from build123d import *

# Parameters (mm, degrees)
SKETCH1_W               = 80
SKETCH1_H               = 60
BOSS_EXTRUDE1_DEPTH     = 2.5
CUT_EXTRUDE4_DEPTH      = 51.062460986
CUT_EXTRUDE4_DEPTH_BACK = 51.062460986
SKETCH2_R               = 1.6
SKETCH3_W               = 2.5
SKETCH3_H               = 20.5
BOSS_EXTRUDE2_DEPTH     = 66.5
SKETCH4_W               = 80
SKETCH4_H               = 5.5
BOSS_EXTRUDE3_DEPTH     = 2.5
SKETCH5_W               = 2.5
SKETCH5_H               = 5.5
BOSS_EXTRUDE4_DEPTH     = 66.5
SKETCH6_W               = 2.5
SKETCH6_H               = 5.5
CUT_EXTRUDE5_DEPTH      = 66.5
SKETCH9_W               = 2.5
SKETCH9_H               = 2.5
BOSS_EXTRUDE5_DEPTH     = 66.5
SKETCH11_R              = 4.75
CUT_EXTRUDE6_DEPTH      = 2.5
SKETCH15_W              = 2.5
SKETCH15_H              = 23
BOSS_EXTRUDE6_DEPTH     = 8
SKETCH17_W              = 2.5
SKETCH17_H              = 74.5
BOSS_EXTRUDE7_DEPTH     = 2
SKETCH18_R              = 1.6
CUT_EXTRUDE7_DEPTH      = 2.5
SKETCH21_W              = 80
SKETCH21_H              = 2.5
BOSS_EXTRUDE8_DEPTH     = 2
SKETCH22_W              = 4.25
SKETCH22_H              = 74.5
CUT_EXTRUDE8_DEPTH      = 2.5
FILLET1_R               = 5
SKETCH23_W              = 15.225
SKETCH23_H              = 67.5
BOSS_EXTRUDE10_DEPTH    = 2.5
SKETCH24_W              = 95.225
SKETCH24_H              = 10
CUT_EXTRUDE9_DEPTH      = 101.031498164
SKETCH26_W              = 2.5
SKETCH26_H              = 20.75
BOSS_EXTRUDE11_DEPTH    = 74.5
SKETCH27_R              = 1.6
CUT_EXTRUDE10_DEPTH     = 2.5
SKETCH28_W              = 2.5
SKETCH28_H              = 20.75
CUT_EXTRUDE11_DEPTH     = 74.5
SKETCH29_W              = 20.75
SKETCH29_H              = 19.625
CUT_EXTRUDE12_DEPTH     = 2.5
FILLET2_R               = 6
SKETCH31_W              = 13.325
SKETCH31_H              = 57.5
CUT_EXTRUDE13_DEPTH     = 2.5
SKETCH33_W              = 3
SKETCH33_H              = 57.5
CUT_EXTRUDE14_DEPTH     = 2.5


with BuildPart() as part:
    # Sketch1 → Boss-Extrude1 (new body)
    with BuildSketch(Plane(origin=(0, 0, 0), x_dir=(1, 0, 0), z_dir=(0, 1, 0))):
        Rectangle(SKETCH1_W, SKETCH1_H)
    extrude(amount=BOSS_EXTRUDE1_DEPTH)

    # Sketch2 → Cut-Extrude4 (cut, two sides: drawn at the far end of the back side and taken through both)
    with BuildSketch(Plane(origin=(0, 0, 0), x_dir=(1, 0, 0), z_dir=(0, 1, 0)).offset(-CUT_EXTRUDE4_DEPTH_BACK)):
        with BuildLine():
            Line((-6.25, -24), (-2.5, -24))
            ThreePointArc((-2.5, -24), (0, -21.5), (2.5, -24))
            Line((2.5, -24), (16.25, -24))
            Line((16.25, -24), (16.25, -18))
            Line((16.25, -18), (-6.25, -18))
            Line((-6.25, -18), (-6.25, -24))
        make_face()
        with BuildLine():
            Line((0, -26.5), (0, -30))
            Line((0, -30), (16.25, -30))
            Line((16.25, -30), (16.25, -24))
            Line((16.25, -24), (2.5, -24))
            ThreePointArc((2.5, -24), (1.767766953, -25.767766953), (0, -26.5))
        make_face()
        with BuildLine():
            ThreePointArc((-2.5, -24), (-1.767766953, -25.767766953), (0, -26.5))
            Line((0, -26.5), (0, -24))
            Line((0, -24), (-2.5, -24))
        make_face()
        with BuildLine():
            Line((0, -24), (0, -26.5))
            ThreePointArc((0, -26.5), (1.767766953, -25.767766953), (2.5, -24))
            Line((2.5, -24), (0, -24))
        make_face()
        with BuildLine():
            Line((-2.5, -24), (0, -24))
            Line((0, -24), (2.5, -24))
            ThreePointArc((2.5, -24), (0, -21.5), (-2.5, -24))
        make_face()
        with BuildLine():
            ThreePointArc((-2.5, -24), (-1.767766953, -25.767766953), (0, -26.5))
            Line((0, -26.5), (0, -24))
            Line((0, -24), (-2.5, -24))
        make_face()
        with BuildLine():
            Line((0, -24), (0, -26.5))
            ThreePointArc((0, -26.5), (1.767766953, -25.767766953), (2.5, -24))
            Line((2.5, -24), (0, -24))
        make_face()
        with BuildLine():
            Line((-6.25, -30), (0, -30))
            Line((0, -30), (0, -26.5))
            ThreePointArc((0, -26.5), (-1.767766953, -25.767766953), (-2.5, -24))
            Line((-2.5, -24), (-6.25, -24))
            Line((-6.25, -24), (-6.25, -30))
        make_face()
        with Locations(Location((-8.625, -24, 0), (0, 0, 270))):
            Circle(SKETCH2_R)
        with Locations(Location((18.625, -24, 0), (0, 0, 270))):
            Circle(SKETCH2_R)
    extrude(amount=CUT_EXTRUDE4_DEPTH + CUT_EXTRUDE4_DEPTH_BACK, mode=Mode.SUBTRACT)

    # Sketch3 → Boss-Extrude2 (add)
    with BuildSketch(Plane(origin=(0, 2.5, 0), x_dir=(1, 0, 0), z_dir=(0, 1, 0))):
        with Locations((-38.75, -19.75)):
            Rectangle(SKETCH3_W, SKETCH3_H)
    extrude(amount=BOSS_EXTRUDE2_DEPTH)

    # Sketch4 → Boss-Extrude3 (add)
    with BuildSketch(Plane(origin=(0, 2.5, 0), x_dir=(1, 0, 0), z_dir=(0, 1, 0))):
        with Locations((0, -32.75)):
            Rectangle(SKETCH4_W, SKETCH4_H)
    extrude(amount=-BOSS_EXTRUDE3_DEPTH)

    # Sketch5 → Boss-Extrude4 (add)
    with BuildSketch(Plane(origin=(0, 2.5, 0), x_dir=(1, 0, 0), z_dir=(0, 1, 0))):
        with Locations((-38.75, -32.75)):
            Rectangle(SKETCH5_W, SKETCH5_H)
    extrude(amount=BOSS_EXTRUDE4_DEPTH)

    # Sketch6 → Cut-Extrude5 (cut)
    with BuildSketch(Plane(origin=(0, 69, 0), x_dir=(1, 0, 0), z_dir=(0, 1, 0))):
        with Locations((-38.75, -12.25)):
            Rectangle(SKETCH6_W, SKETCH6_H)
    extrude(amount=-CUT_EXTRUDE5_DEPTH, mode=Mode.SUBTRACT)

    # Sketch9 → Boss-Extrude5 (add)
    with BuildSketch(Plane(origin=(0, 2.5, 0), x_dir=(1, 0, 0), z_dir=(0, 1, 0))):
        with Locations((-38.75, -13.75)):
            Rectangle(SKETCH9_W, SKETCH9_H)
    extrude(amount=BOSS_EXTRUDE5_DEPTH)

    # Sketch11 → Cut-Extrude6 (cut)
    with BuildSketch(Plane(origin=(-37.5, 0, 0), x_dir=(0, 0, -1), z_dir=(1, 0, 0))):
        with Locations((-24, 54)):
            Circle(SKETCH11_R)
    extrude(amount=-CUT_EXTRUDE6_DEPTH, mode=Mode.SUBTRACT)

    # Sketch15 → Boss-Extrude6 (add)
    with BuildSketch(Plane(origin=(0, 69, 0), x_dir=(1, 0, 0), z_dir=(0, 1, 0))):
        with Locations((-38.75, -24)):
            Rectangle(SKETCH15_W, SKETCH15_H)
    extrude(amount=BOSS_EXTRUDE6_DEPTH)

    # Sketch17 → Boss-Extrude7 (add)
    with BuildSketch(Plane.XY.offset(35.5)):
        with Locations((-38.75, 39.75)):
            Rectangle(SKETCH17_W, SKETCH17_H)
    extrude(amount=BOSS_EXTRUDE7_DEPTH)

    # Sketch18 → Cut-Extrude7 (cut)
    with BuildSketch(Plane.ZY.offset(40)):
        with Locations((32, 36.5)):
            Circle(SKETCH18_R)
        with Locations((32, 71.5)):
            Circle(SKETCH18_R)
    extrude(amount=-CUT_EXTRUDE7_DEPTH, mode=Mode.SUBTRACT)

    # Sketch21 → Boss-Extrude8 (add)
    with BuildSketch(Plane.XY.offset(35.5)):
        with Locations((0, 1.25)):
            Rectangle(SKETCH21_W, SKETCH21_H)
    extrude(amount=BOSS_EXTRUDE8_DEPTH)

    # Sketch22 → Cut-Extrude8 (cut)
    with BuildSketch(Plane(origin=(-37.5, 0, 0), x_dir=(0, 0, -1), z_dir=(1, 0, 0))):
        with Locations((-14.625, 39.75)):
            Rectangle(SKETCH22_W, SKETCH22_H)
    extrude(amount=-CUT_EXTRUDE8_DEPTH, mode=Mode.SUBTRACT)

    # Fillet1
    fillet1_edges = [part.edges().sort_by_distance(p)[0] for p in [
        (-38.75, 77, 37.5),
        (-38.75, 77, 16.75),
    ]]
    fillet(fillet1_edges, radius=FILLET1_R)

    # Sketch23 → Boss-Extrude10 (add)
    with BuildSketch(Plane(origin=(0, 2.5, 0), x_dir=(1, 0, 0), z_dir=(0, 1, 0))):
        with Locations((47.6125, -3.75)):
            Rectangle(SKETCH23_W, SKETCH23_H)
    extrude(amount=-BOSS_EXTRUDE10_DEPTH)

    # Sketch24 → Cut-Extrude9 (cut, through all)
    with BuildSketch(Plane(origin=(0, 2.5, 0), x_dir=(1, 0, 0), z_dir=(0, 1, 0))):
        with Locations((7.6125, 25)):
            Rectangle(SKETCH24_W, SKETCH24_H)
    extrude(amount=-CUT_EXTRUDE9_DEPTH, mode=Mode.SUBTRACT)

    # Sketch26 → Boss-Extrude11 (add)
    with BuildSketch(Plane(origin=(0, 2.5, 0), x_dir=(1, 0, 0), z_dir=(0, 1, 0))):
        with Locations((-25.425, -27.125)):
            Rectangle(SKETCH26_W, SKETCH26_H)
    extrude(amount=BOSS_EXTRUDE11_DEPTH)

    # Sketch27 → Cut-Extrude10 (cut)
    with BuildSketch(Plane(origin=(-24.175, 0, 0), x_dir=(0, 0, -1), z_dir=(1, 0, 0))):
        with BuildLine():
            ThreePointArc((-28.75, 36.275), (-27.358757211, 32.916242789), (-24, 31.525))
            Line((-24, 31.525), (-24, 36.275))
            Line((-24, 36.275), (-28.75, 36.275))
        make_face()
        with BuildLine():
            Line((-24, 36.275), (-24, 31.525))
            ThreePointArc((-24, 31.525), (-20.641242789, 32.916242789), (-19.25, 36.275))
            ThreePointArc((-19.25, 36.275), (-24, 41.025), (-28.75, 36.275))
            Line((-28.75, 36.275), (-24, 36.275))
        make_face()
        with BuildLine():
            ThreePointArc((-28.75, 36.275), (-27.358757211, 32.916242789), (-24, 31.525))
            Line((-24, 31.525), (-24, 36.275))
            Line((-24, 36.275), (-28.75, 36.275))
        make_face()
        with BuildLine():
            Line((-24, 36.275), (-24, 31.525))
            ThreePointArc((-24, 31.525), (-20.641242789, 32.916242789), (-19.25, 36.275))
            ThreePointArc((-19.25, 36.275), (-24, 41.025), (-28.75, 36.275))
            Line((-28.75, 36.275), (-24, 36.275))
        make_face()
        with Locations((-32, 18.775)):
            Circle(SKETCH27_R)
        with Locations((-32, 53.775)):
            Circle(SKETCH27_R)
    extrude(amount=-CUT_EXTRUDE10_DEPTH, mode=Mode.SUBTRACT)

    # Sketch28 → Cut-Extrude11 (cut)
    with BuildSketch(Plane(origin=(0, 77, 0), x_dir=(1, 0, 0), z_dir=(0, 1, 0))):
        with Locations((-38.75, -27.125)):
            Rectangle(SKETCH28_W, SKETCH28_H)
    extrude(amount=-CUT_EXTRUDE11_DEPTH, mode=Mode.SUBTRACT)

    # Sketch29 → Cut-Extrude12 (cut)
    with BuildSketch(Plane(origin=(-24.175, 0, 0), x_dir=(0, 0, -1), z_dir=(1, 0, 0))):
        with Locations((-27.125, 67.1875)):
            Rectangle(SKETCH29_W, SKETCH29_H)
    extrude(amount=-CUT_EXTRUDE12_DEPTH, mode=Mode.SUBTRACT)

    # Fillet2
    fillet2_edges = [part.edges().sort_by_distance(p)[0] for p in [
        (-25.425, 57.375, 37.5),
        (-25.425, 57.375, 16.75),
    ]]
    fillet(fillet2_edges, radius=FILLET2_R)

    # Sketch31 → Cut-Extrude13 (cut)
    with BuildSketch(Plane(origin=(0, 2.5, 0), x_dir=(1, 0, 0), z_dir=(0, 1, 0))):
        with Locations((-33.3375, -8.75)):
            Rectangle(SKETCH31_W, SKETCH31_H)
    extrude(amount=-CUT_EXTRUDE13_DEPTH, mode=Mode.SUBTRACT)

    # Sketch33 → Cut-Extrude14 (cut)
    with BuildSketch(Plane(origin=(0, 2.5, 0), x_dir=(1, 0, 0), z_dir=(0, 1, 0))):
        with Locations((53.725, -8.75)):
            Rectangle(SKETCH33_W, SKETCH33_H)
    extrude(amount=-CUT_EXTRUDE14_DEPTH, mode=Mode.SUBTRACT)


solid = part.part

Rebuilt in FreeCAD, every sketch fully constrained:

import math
import FreeCAD as App
import Part
import Sketcher

V = App.Vector
Q = App.Units.Quantity


def edges_at(feature, points):
    """Names of the edges that pass closest to the given points."""
    edges = feature.Shape.Edges
    near = lambda p: min(range(len(edges)), key=lambda i: edges[i].distToShape(Part.Vertex(*p))[0])
    return sorted({f"Edge{near(p) + 1}" for p in points})


def add_polygon(sketch, points):
    """Adds a closed chain of lines whose ends are joined by coincident constraints."""
    first, n = sketch.GeometryCount, len(points)
    for a, b in zip(points, points[1:] + points[:1]):
        sketch.addGeometry(Part.LineSegment(App.Vector(*a, 0), App.Vector(*b, 0)), False)
    for i in range(n):
        sketch.addConstraint(Sketcher.Constraint("Coincident", first + i, 2, first + (i + 1) % n, 1))

doc = App.newDocument("Part")
params = doc.addObject("Spreadsheet::Sheet", "Params")
for row, (alias, value) in enumerate([
    ("sketch1_width", "80 mm"),
    ("sketch1_height", "60 mm"),
    ("pad1_length", "2.5 mm"),
    ("sketch2_diameter", "3.2 mm"),
    ("sketch2_height", "12 mm"),
    ("sketch2_width", "22.5 mm"),
    ("sketch3_width", "2.5 mm"),
    ("sketch3_height", "20.5 mm"),
    ("pad2_length", "66.5 mm"),
    ("sketch4_width", "80 mm"),
    ("sketch4_height", "5.5 mm"),
    ("pad3_length", "2.5 mm"),
    ("sketch5_width", "2.5 mm"),
    ("sketch5_height", "5.5 mm"),
    ("pad4_length", "66.5 mm"),
    ("sketch6_width", "2.5 mm"),
    ("sketch6_height", "5.5 mm"),
    ("pocket2_length", "66.5 mm"),
    ("sketch7_width", "2.5 mm"),
    ("pad5_length", "66.5 mm"),
    ("sketch8_diameter", "9.5 mm"),
    ("pocket3_length", "2.5 mm"),
    ("sketch9_height", "23 mm"),
    ("sketch9_width", "2.5 mm"),
    ("pad6_length", "8 mm"),
    ("sketch10_width", "2.5 mm"),
    ("sketch10_height", "74.5 mm"),
    ("pad7_length", "2 mm"),
    ("sketch11_diameter", "3.2 mm"),
    ("pocket4_length", "2.5 mm"),
    ("sketch12_width", "80 mm"),
    ("sketch12_height", "2.5 mm"),
    ("pad8_length", "2 mm"),
    ("sketch13_width", "74.5 mm"),
    ("sketch13_height", "4.25 mm"),
    ("pocket5_length", "2.5 mm"),
    ("fillet_radius", "5 mm"),
    ("sketch14_height", "67.5 mm"),
    ("pad9_length", "2.5 mm"),
    ("sketch15_height", "10 mm"),
    ("sketch16_width", "2.5 mm"),
    ("sketch16_height", "20.75 mm"),
    ("pad10_length", "74.5 mm"),
    ("sketch17_diameter", "3.2 mm"),
    ("sketch17_radius", "4.75 mm"),
    ("pocket7_length", "2.5 mm"),
    ("sketch18_width", "2.5 mm"),
    ("sketch18_height", "20.75 mm"),
    ("pocket8_length", "74.5 mm"),
    ("sketch19_height", "20.75 mm"),
    ("pocket9_length", "2.5 mm"),
    ("fillet2_radius", "6 mm"),
    ("sketch20_height", "57.5 mm"),
    ("pocket10_length", "2.5 mm"),
    ("sketch21_width", "3 mm"),
    ("sketch21_height", "57.5 mm"),
    ("pocket11_length", "2.5 mm"),
], start=1):
    params.set(f"A{row}", alias)
    params.set(f"B{row}", "=" + value)
    params.setAlias(f"B{row}", alias)

body = doc.addObject("PartDesign::Body", "Body")

sketch1 = doc.addObject("Sketcher::SketchObject", "Sketch")
body.addObject(sketch1)
sketch1.AttachmentSupport = (doc.XZ_Plane, [""])
sketch1.MapMode = "FlatFace"
add_polygon(sketch1, [(-40, -30), (-40, 30), (40, 30), (40, -30)])
sketch1.addConstraint([
    Sketcher.Constraint("Vertical", 0),
    Sketcher.Constraint("Horizontal", 1),
    Sketcher.Constraint("Vertical", 2),
    Sketcher.Constraint("Horizontal", 3),
    Sketcher.Constraint("Symmetric", 0, 2, 2, 2, -1, 1),
    Sketcher.Constraint("DistanceX", 1, 1, 1, 2, Q("80 mm")),
    Sketcher.Constraint("DistanceY", 0, 1, 0, 2, Q("60 mm")),
])
sketch1.setExpression("Constraints[9]", "Params.sketch1_width")
sketch1.setExpression("Constraints[10]", "Params.sketch1_height")
pad1 = doc.addObject("PartDesign::Pad", "Pad")
body.addObject(pad1)
pad1.Profile = sketch1
pad1.setExpression("Length", "Params.pad1_length")
pad1.Reversed = True

sketch2 = doc.addObject("Sketcher::SketchObject", "Sketch001")
body.addObject(sketch2)
sketch2.AttachmentSupport = (doc.XZ_Plane, [""])
sketch2.MapMode = "FlatFace"
add_polygon(sketch2, [(16.25, 18), (-6.25, 18), (-6.25, 30), (16.25, 30)])
sketch2.addGeometry(Part.Circle(V(-8.625, 24, 0), V(0, 0, 1), 1.6), False)
sketch2.addGeometry(Part.Circle(V(18.625, 24, 0), V(0, 0, 1), 1.6), False)
sketch2.addConstraint([
    Sketcher.Constraint("Horizontal", 0),
    Sketcher.Constraint("Vertical", 1),
    Sketcher.Constraint("Horizontal", 2),
    Sketcher.Constraint("Vertical", 3),
    Sketcher.Constraint("Equal", 4, 5),
    Sketcher.Constraint("Horizontal", 4, 3, 5, 3),
    Sketcher.Constraint("Diameter", 4, Q("3.2 mm")),
    Sketcher.Constraint("DistanceY", 1, 1, 1, 2, Q("12 mm")),
    Sketcher.Constraint("DistanceX", 0, 2, 0, 1, Q("22.5 mm")),
    Sketcher.Constraint("DistanceY", -1, 1, 4, 3, Q("24 mm")),
    Sketcher.Constraint("DistanceY", -1, 1, 0, 2, Q("18 mm")),
    Sketcher.Constraint("DistanceX", 0, 2, -1, 1, Q("6.25 mm")),
    Sketcher.Constraint("DistanceX", 4, 3, 5, 3, Q("27.25 mm")),
    Sketcher.Constraint("DistanceX", 4, 3, -1, 1, Q("8.625 mm")),
])
sketch2.setExpression("Constraints[10]", "Params.sketch2_diameter")
sketch2.setExpression("Constraints[11]", "Params.sketch2_height")
sketch2.setExpression("Constraints[12]", "Params.sketch2_width")
pocket1 = doc.addObject("PartDesign::Pocket", "Pocket")
body.addObject(pocket1)
pocket1.Profile = sketch2
pocket1.Type = "ThroughAll"
pocket1.Midplane = True

sketch3 = doc.addObject("Sketcher::SketchObject", "Sketch002")
body.addObject(sketch3)
sketch3.AttachmentSupport = (doc.XZ_Plane, [""])
sketch3.MapMode = "FlatFace"
sketch3.AttachmentOffset = App.Placement(V(0, 0, -2.5), App.Rotation())
add_polygon(sketch3, [(-40, 9.5), (-40, 30), (-37.5, 30), (-37.5, 9.5)])
sketch3.addConstraint([
    Sketcher.Constraint("Vertical", 0),
    Sketcher.Constraint("Horizontal", 1),
    Sketcher.Constraint("Vertical", 2),
    Sketcher.Constraint("Horizontal", 3),
    Sketcher.Constraint("DistanceX", 1, 1, 1, 2, Q("2.5 mm")),
    Sketcher.Constraint("DistanceY", 0, 1, 0, 2, Q("20.5 mm")),
    Sketcher.Constraint("DistanceX", 0, 2, -1, 1, Q("40 mm")),
    Sketcher.Constraint("DistanceY", -1, 1, 0, 2, Q("30 mm")),
])
sketch3.setExpression("Constraints[8]", "Params.sketch3_width")
sketch3.setExpression("Constraints[9]", "Params.sketch3_height")
pad2 = doc.addObject("PartDesign::Pad", "Pad001")
body.addObject(pad2)
pad2.Profile = sketch3
pad2.setExpression("Length", "Params.pad2_length")
pad2.Reversed = True

sketch4 = doc.addObject("Sketcher::SketchObject", "Sketch003")
body.addObject(sketch4)
sketch4.AttachmentSupport = (doc.XZ_Plane, [""])
sketch4.MapMode = "FlatFace"
sketch4.AttachmentOffset = App.Placement(V(0, 0, -2.5), App.Rotation())
add_polygon(sketch4, [(-40, 30), (-40, 35.5), (40, 35.5), (40, 30)])
sketch4.addConstraint([
    Sketcher.Constraint("Vertical", 0),
    Sketcher.Constraint("Horizontal", 1),
    Sketcher.Constraint("Vertical", 2),
    Sketcher.Constraint("Horizontal", 3),
    Sketcher.Constraint("DistanceX", 1, 1, 1, 2, Q("80 mm")),
    Sketcher.Constraint("DistanceY", 0, 1, 0, 2, Q("5.5 mm")),
    Sketcher.Constraint("DistanceX", 0, 2, -1, 1, Q("40 mm")),
    Sketcher.Constraint("DistanceY", -1, 1, 2, 2, Q("30 mm")),
])
sketch4.setExpression("Constraints[8]", "Params.sketch4_width")
sketch4.setExpression("Constraints[9]", "Params.sketch4_height")
pad3 = doc.addObject("PartDesign::Pad", "Pad002")
body.addObject(pad3)
pad3.Profile = sketch4
pad3.setExpression("Length", "Params.pad3_length")

sketch5 = doc.addObject("Sketcher::SketchObject", "Sketch004")
body.addObject(sketch5)
sketch5.AttachmentSupport = (doc.XZ_Plane, [""])
sketch5.MapMode = "FlatFace"
sketch5.AttachmentOffset = App.Placement(V(0, 0, -2.5), App.Rotation())
add_polygon(sketch5, [(-40, 30), (-40, 35.5), (-37.5, 35.5), (-37.5, 30)])
sketch5.addConstraint([
    Sketcher.Constraint("Vertical", 0),
    Sketcher.Constraint("Horizontal", 1),
    Sketcher.Constraint("Vertical", 2),
    Sketcher.Constraint("Horizontal", 3),
    Sketcher.Constraint("DistanceX", 1, 1, 1, 2, Q("2.5 mm")),
    Sketcher.Constraint("DistanceY", 0, 1, 0, 2, Q("5.5 mm")),
    Sketcher.Constraint("DistanceX", 0, 2, -1, 1, Q("40 mm")),
    Sketcher.Constraint("DistanceY", -1, 1, 2, 2, Q("30 mm")),
])
sketch5.setExpression("Constraints[8]", "Params.sketch5_width")
sketch5.setExpression("Constraints[9]", "Params.sketch5_height")
pad4 = doc.addObject("PartDesign::Pad", "Pad003")
body.addObject(pad4)
pad4.Profile = sketch5
pad4.setExpression("Length", "Params.pad4_length")
pad4.Reversed = True

sketch6 = doc.addObject("Sketcher::SketchObject", "Sketch005")
body.addObject(sketch6)
sketch6.AttachmentSupport = (doc.XZ_Plane, [""])
sketch6.MapMode = "FlatFace"
sketch6.AttachmentOffset = App.Placement(V(0, 0, -69), App.Rotation())
add_polygon(sketch6, [(-40, 9.5), (-40, 15), (-37.5, 15), (-37.5, 9.5)])
sketch6.addConstraint([
    Sketcher.Constraint("Vertical", 0),
    Sketcher.Constraint("Horizontal", 1),
    Sketcher.Constraint("Vertical", 2),
    Sketcher.Constraint("Horizontal", 3),
    Sketcher.Constraint("DistanceX", 1, 1, 1, 2, Q("2.5 mm")),
    Sketcher.Constraint("DistanceY", 0, 1, 0, 2, Q("5.5 mm")),
    Sketcher.Constraint("DistanceX", 0, 2, -1, 1, Q("40 mm")),
    Sketcher.Constraint("DistanceY", -1, 1, 0, 2, Q("15 mm")),
])
sketch6.setExpression("Constraints[8]", "Params.sketch6_width")
sketch6.setExpression("Constraints[9]", "Params.sketch6_height")
pocket2 = doc.addObject("PartDesign::Pocket", "Pocket001")
body.addObject(pocket2)
pocket2.Profile = sketch6
pocket2.setExpression("Length", "Params.pocket2_length")
pocket2.Reversed = True

sketch7 = doc.addObject("Sketcher::SketchObject", "Sketch006")
body.addObject(sketch7)
sketch7.AttachmentSupport = (doc.XZ_Plane, [""])
sketch7.MapMode = "FlatFace"
sketch7.AttachmentOffset = App.Placement(V(0, 0, -2.5), App.Rotation())
add_polygon(sketch7, [(-40, 12.5), (-40, 15), (-37.5, 15), (-37.5, 12.5)])
sketch7.addConstraint([
    Sketcher.Constraint("Vertical", 0),
    Sketcher.Constraint("Horizontal", 1),
    Sketcher.Constraint("Vertical", 2),
    Sketcher.Constraint("Horizontal", 3),
    Sketcher.Constraint("Equal", 3, 0),
    Sketcher.Constraint("DistanceX", 1, 1, 1, 2, Q("2.5 mm")),
    Sketcher.Constraint("DistanceX", 0, 2, -1, 1, Q("40 mm")),
    Sketcher.Constraint("DistanceY", -1, 1, 0, 2, Q("15 mm")),
])
sketch7.setExpression("Constraints[9]", "Params.sketch7_width")
pad5 = doc.addObject("PartDesign::Pad", "Pad004")
body.addObject(pad5)
pad5.Profile = sketch7
pad5.setExpression("Length", "Params.pad5_length")
pad5.Reversed = True

sketch8 = doc.addObject("Sketcher::SketchObject", "Sketch007")
body.addObject(sketch8)
sketch8.AttachmentSupport = (doc.YZ_Plane, [""])
sketch8.MapMode = "FlatFace"
sketch8.AttachmentOffset = App.Placement(V(0, 0, -37.5), App.Rotation())
sketch8.addGeometry(Part.Circle(V(54, 24, 0), V(0, 0, 1), 4.75), False)
sketch8.addConstraint([
    Sketcher.Constraint("Diameter", 0, Q("9.5 mm")),
    Sketcher.Constraint("DistanceX", -1, 1, 0, 3, Q("54 mm")),
    Sketcher.Constraint("DistanceY", -1, 1, 0, 3, Q("24 mm")),
])
sketch8.setExpression("Constraints[0]", "Params.sketch8_diameter")
pocket3 = doc.addObject("PartDesign::Pocket", "Pocket002")
body.addObject(pocket3)
pocket3.Profile = sketch8
pocket3.setExpression("Length", "Params.pocket3_length")

sketch9 = doc.addObject("Sketcher::SketchObject", "Sketch008")
body.addObject(sketch9)
sketch9.AttachmentSupport = (doc.XZ_Plane, [""])
sketch9.MapMode = "FlatFace"
sketch9.AttachmentOffset = App.Placement(V(0, 0, -69), App.Rotation())
add_polygon(sketch9, [(-40, 12.5), (-40, 35.5), (-37.5, 35.5), (-37.5, 12.5)])
sketch9.addConstraint([
    Sketcher.Constraint("Vertical", 0),
    Sketcher.Constraint("Horizontal", 1),
    Sketcher.Constraint("Vertical", 2),
    Sketcher.Constraint("Horizontal", 3),
    Sketcher.Constraint("DistanceY", 0, 1, 0, 2, Q("23 mm")),
    Sketcher.Constraint("DistanceX", 1, 1, 1, 2, Q("2.5 mm")),
    Sketcher.Constraint("DistanceX", 0, 2, -1, 1, Q("40 mm")),
    Sketcher.Constraint("DistanceY", -1, 1, 0, 2, Q("35.5 mm")),
])
sketch9.setExpression("Constraints[8]", "Params.sketch9_height")
sketch9.setExpression("Constraints[9]", "Params.sketch9_width")
pad6 = doc.addObject("PartDesign::Pad", "Pad005")
body.addObject(pad6)
pad6.Profile = sketch9
pad6.setExpression("Length", "Params.pad6_length")
pad6.Reversed = True

sketch10 = doc.addObject("Sketcher::SketchObject", "Sketch009")
body.addObject(sketch10)
sketch10.AttachmentSupport = (doc.XY_Plane, [""])
sketch10.MapMode = "FlatFace"
sketch10.AttachmentOffset = App.Placement(V(0, 0, 35.5), App.Rotation())
add_polygon(sketch10, [(-40, 77), (-40, 2.5), (-37.5, 2.5), (-37.5, 77)])
sketch10.addConstraint([
    Sketcher.Constraint("Vertical", 0),
    Sketcher.Constraint("Horizontal", 1),
    Sketcher.Constraint("Vertical", 2),
    Sketcher.Constraint("Horizontal", 3),
    Sketcher.Constraint("DistanceX", 1, 1, 1, 2, Q("2.5 mm")),
    Sketcher.Constraint("DistanceY", 0, 2, 0, 1, Q("74.5 mm")),
    Sketcher.Constraint("DistanceX", 0, 2, -1, 1, Q("40 mm")),
    Sketcher.Constraint("DistanceY", -1, 1, 2, 2, Q("77 mm")),
])
sketch10.setExpression("Constraints[8]", "Params.sketch10_width")
sketch10.setExpression("Constraints[9]", "Params.sketch10_height")
pad7 = doc.addObject("PartDesign::Pad", "Pad006")
body.addObject(pad7)
pad7.Profile = sketch10
pad7.setExpression("Length", "Params.pad7_length")

sketch11 = doc.addObject("Sketcher::SketchObject", "Sketch010")
body.addObject(sketch11)
sketch11.AttachmentSupport = (doc.YZ_Plane, [""])
sketch11.MapMode = "FlatFace"
sketch11.AttachmentOffset = App.Placement(V(0, 0, -40), App.Rotation())
sketch11.addGeometry([
    Part.Circle(V(36.5, 32, 0), V(0, 0, 1), 1.6),
    Part.Circle(V(71.5, 32, 0), V(0, 0, 1), 1.6),
], False)
sketch11.addConstraint([
    Sketcher.Constraint("Equal", 0, 1),
    Sketcher.Constraint("Horizontal", 0, 3, 1, 3),
    Sketcher.Constraint("Diameter", 0, Q("3.2 mm")),
    Sketcher.Constraint("DistanceY", -1, 1, 0, 3, Q("32 mm")),
    Sketcher.Constraint("DistanceX", 0, 3, 1, 3, Q("35 mm")),
    Sketcher.Constraint("DistanceX", -1, 1, 0, 3, Q("36.5 mm")),
])
sketch11.setExpression("Constraints[2]", "Params.sketch11_diameter")
pocket4 = doc.addObject("PartDesign::Pocket", "Pocket003")
body.addObject(pocket4)
pocket4.Profile = sketch11
pocket4.setExpression("Length", "Params.pocket4_length")
pocket4.Reversed = True

sketch12 = doc.addObject("Sketcher::SketchObject", "Sketch011")
body.addObject(sketch12)
sketch12.AttachmentSupport = (doc.XY_Plane, [""])
sketch12.MapMode = "FlatFace"
sketch12.AttachmentOffset = App.Placement(V(0, 0, 35.5), App.Rotation())
add_polygon(sketch12, [(-40, 2.5), (-40, 0), (40, 0), (40, 2.5)])
sketch12.addConstraint([
    Sketcher.Constraint("Vertical", 0),
    Sketcher.Constraint("Horizontal", 1),
    Sketcher.Constraint("Vertical", 2),
    Sketcher.Constraint("Horizontal", 3),
    Sketcher.Constraint("Symmetric", 0, 2, 1, 2, -1, 1),
    Sketcher.Constraint("DistanceX", 1, 1, 1, 2, Q("80 mm")),
    Sketcher.Constraint("DistanceY", 0, 2, 0, 1, Q("2.5 mm")),
])
sketch12.setExpression("Constraints[9]", "Params.sketch12_width")
sketch12.setExpression("Constraints[10]", "Params.sketch12_height")
pad8 = doc.addObject("PartDesign::Pad", "Pad007")
body.addObject(pad8)
pad8.Profile = sketch12
pad8.setExpression("Length", "Params.pad8_length")

sketch13 = doc.addObject("Sketcher::SketchObject", "Sketch012")
body.addObject(sketch13)
sketch13.AttachmentSupport = (doc.YZ_Plane, [""])
sketch13.MapMode = "FlatFace"
sketch13.AttachmentOffset = App.Placement(V(0, 0, -37.5), App.Rotation())
add_polygon(sketch13, [(77, 16.75), (2.5, 16.75), (2.5, 12.5), (77, 12.5)])
sketch13.addConstraint([
    Sketcher.Constraint("Horizontal", 0),
    Sketcher.Constraint("Vertical", 1),
    Sketcher.Constraint("Horizontal", 2),
    Sketcher.Constraint("Vertical", 3),
    Sketcher.Constraint("DistanceX", 0, 2, 0, 1, Q("74.5 mm")),
    Sketcher.Constraint("DistanceX", -1, 1, 2, 2, Q("77 mm")),
    Sketcher.Constraint("DistanceY", 1, 2, 1, 1, Q("4.25 mm")),
    Sketcher.Constraint("DistanceY", -1, 1, 1, 2, Q("12.5 mm")),
])
sketch13.setExpression("Constraints[8]", "Params.sketch13_width")
sketch13.setExpression("Constraints[10]", "Params.sketch13_height")
pocket5 = doc.addObject("PartDesign::Pocket", "Pocket004")
body.addObject(pocket5)
pocket5.Profile = sketch13
pocket5.setExpression("Length", "Params.pocket5_length")
doc.recompute()

fillet = doc.addObject("PartDesign::Fillet", "Fillet")
body.addObject(fillet)
fillet.Base = (pocket5, edges_at(pocket5, [(-38.75, 77, 37.5), (-38.75, 77, 16.75)]))
fillet.setExpression("Radius", "Params.fillet_radius")

sketch14 = doc.addObject("Sketcher::SketchObject", "Sketch013")
body.addObject(sketch14)
sketch14.AttachmentSupport = (doc.XZ_Plane, [""])
sketch14.MapMode = "FlatFace"
sketch14.AttachmentOffset = App.Placement(V(0, 0, -2.5), App.Rotation())
add_polygon(sketch14, [(40, -30), (40, 37.5), (55.225, 37.5), (55.225, -30)])
sketch14.addConstraint([
    Sketcher.Constraint("Vertical", 0),
    Sketcher.Constraint("Horizontal", 1),
    Sketcher.Constraint("Vertical", 2),
    Sketcher.Constraint("Horizontal", 3),
    Sketcher.Constraint("DistanceY", 0, 1, 0, 2, Q("67.5 mm")),
    Sketcher.Constraint("DistanceX", -1, 1, 0, 2, Q("40 mm")),
    Sketcher.Constraint("DistanceY", 2, 2, -1, 1, Q("30 mm")),
    Sketcher.Constraint("DistanceX", 1, 1, 1, 2, Q("15.225 mm")),
])
sketch14.setExpression("Constraints[8]", "Params.sketch14_height")
pad9 = doc.addObject("PartDesign::Pad", "Pad008")
body.addObject(pad9)
pad9.Profile = sketch14
pad9.setExpression("Length", "Params.pad9_length")

sketch15 = doc.addObject("Sketcher::SketchObject", "Sketch014")
body.addObject(sketch15)
sketch15.AttachmentSupport = (doc.XZ_Plane, [""])
sketch15.MapMode = "FlatFace"
sketch15.AttachmentOffset = App.Placement(V(0, 0, -2.5), App.Rotation())
add_polygon(sketch15, [(-40, -30), (-40, -20), (55.225, -20), (55.225, -30)])
sketch15.addConstraint([
    Sketcher.Constraint("Vertical", 0),
    Sketcher.Constraint("Horizontal", 1),
    Sketcher.Constraint("Vertical", 2),
    Sketcher.Constraint("Horizontal", 3),
    Sketcher.Constraint("DistanceY", 0, 1, 0, 2, Q("10 mm")),
    Sketcher.Constraint("DistanceX", 0, 2, -1, 1, Q("40 mm")),
    Sketcher.Constraint("DistanceY", 0, 2, -1, 1, Q("20 mm")),
    Sketcher.Constraint("DistanceX", 1, 1, 1, 2, Q("95.225 mm")),
])
sketch15.setExpression("Constraints[8]", "Params.sketch15_height")
pocket6 = doc.addObject("PartDesign::Pocket", "Pocket005")
body.addObject(pocket6)
pocket6.Profile = sketch15
pocket6.Type = "ThroughAll"
pocket6.Reversed = True

sketch16 = doc.addObject("Sketcher::SketchObject", "Sketch015")
body.addObject(sketch16)
sketch16.AttachmentSupport = (doc.XZ_Plane, [""])
sketch16.MapMode = "FlatFace"
sketch16.AttachmentOffset = App.Placement(V(0, 0, -2.5), App.Rotation())
add_polygon(sketch16, [(-26.675, 16.75), (-26.675, 37.5), (-24.175, 37.5), (-24.175, 16.75)])
sketch16.addConstraint([
    Sketcher.Constraint("Vertical", 0),
    Sketcher.Constraint("Horizontal", 1),
    Sketcher.Constraint("Vertical", 2),
    Sketcher.Constraint("Horizontal", 3),
    Sketcher.Constraint("DistanceX", 1, 1, 1, 2, Q("2.5 mm")),
    Sketcher.Constraint("DistanceY", 0, 1, 0, 2, Q("20.75 mm")),
    Sketcher.Constraint("DistanceY", -1, 1, 0, 2, Q("37.5 mm")),
    Sketcher.Constraint("DistanceX", 0, 2, -1, 1, Q("26.675 mm")),
])
sketch16.setExpression("Constraints[8]", "Params.sketch16_width")
sketch16.setExpression("Constraints[9]", "Params.sketch16_height")
pad10 = doc.addObject("PartDesign::Pad", "Pad009")
body.addObject(pad10)
pad10.Profile = sketch16
pad10.setExpression("Length", "Params.pad10_length")
pad10.Reversed = True

sketch17 = doc.addObject("Sketcher::SketchObject", "Sketch016")
body.addObject(sketch17)
sketch17.AttachmentSupport = (doc.YZ_Plane, [""])
sketch17.MapMode = "FlatFace"
sketch17.AttachmentOffset = App.Placement(V(0, 0, -24.175), App.Rotation())
sketch17.addGeometry([
    Part.ArcOfCircle(Part.Circle(V(36.275, 24, 0), V(0, 0, 1), 4.75), math.radians(90), math.radians(180)),
    Part.ArcOfCircle(Part.Circle(V(36.275, 24, 0), V(0, 0, 1), 4.75), math.radians(180), math.radians(270)),
    Part.ArcOfCircle(Part.Circle(V(36.275, 24, 0), V(0, 0, 1), 4.75), math.radians(-90), math.radians(90)),
    Part.Circle(V(18.775, 32, 0), V(0, 0, 1), 1.6),
    Part.Circle(V(53.775, 32, 0), V(0, 0, 1), 1.6),
], False)
sketch17.addConstraint([
    Sketcher.Constraint("Tangent", 0, 2, 1, 1),
    Sketcher.Constraint("Tangent", 1, 2, 2, 1),
    Sketcher.Constraint("Tangent", 2, 2, 0, 1),
    Sketcher.Constraint("Equal", 3, 4),
    Sketcher.Constraint("Horizontal", 3, 3, 4, 3),
    Sketcher.Constraint("Horizontal", 2, 3, 0, 2),
    Sketcher.Constraint("Vertical", 2, 3, 1, 2),
    Sketcher.Constraint("Vertical", 1, 2, 2, 2),
    Sketcher.Constraint("Diameter", 3, Q("3.2 mm")),
    Sketcher.Constraint("Radius", 0, Q("4.75 mm")),
    Sketcher.Constraint("DistanceY", -1, 1, 0, 3, Q("24 mm")),
    Sketcher.Constraint("DistanceY", -1, 1, 3, 3, Q("32 mm")),
    Sketcher.Constraint("DistanceX", 3, 3, 4, 3, Q("35 mm")),
    Sketcher.Constraint("DistanceX", 3, 3, 0, 3, Q("17.5 mm")),
    Sketcher.Constraint("DistanceX", -1, 1, 0, 3, Q("36.275 mm")),
])
sketch17.setExpression("Constraints[8]", "Params.sketch17_diameter")
sketch17.setExpression("Constraints[9]", "Params.sketch17_radius")
pocket7 = doc.addObject("PartDesign::Pocket", "Pocket006")
body.addObject(pocket7)
pocket7.Profile = sketch17
pocket7.setExpression("Length", "Params.pocket7_length")

sketch18 = doc.addObject("Sketcher::SketchObject", "Sketch017")
body.addObject(sketch18)
sketch18.AttachmentSupport = (doc.XZ_Plane, [""])
sketch18.MapMode = "FlatFace"
sketch18.AttachmentOffset = App.Placement(V(0, 0, -77), App.Rotation())
add_polygon(sketch18, [(-40, 16.75), (-40, 37.5), (-37.5, 37.5), (-37.5, 16.75)])
sketch18.addConstraint([
    Sketcher.Constraint("Vertical", 0),
    Sketcher.Constraint("Horizontal", 1),
    Sketcher.Constraint("Vertical", 2),
    Sketcher.Constraint("Horizontal", 3),
    Sketcher.Constraint("DistanceX", 1, 1, 1, 2, Q("2.5 mm")),
    Sketcher.Constraint("DistanceX", 0, 2, -1, 1, Q("40 mm")),
    Sketcher.Constraint("DistanceY", 0, 1, 0, 2, Q("20.75 mm")),
    Sketcher.Constraint("DistanceY", -1, 1, 0, 2, Q("37.5 mm")),
])
sketch18.setExpression("Constraints[8]", "Params.sketch18_width")
sketch18.setExpression("Constraints[10]", "Params.sketch18_height")
pocket8 = doc.addObject("PartDesign::Pocket", "Pocket007")
body.addObject(pocket8)
pocket8.Profile = sketch18
pocket8.setExpression("Length", "Params.pocket8_length")
pocket8.Reversed = True

sketch19 = doc.addObject("Sketcher::SketchObject", "Sketch018")
body.addObject(sketch19)
sketch19.AttachmentSupport = (doc.YZ_Plane, [""])
sketch19.MapMode = "FlatFace"
sketch19.AttachmentOffset = App.Placement(V(0, 0, -24.175), App.Rotation())
add_polygon(sketch19, [(77, 37.5), (57.375, 37.5), (57.375, 16.75), (77, 16.75)])
sketch19.addConstraint([
    Sketcher.Constraint("Horizontal", 0),
    Sketcher.Constraint("Vertical", 1),
    Sketcher.Constraint("Horizontal", 2),
    Sketcher.Constraint("Vertical", 3),
    Sketcher.Constraint("DistanceX", -1, 1, 2, 2, Q("77 mm")),
    Sketcher.Constraint("DistanceY", 1, 2, 1, 1, Q("20.75 mm")),
    Sketcher.Constraint("DistanceY", -1, 1, 0, 2, Q("37.5 mm")),
    Sketcher.Constraint("DistanceX", 0, 2, 0, 1, Q("19.625 mm")),
])
sketch19.setExpression("Constraints[9]", "Params.sketch19_height")
pocket9 = doc.addObject("PartDesign::Pocket", "Pocket008")
body.addObject(pocket9)
pocket9.Profile = sketch19
pocket9.setExpression("Length", "Params.pocket9_length")
doc.recompute()

fillet2 = doc.addObject("PartDesign::Fillet", "Fillet001")
body.addObject(fillet2)
fillet2.Base = (pocket9, edges_at(pocket9, [(-25.425, 57.375, 37.5), (-25.425, 57.375, 16.75)]))
fillet2.setExpression("Radius", "Params.fillet2_radius")

sketch20 = doc.addObject("Sketcher::SketchObject", "Sketch019")
body.addObject(sketch20)
sketch20.AttachmentSupport = (doc.XZ_Plane, [""])
sketch20.MapMode = "FlatFace"
sketch20.AttachmentOffset = App.Placement(V(0, 0, -2.5), App.Rotation())
add_polygon(sketch20, [(-40, -20), (-40, 37.5), (-26.675, 37.5), (-26.675, -20)])
sketch20.addConstraint([
    Sketcher.Constraint("Vertical", 0),
    Sketcher.Constraint("Horizontal", 1),
    Sketcher.Constraint("Vertical", 2),
    Sketcher.Constraint("Horizontal", 3),
    Sketcher.Constraint("DistanceY", 0, 1, 0, 2, Q("57.5 mm")),
    Sketcher.Constraint("DistanceX", 0, 2, -1, 1, Q("40 mm")),
    Sketcher.Constraint("DistanceY", 2, 2, -1, 1, Q("20 mm")),
    Sketcher.Constraint("DistanceX", 1, 1, 1, 2, Q("13.325 mm")),
])
sketch20.setExpression("Constraints[8]", "Params.sketch20_height")
pocket10 = doc.addObject("PartDesign::Pocket", "Pocket009")
body.addObject(pocket10)
pocket10.Profile = sketch20
pocket10.setExpression("Length", "Params.pocket10_length")
pocket10.Reversed = True

sketch21 = doc.addObject("Sketcher::SketchObject", "Sketch020")
body.addObject(sketch21)
sketch21.AttachmentSupport = (doc.XZ_Plane, [""])
sketch21.MapMode = "FlatFace"
sketch21.AttachmentOffset = App.Placement(V(0, 0, -2.5), App.Rotation())
add_polygon(sketch21, [(52.225, -20), (52.225, 37.5), (55.225, 37.5), (55.225, -20)])
sketch21.addConstraint([
    Sketcher.Constraint("Vertical", 0),
    Sketcher.Constraint("Horizontal", 1),
    Sketcher.Constraint("Vertical", 2),
    Sketcher.Constraint("Horizontal", 3),
    Sketcher.Constraint("DistanceX", 1, 1, 1, 2, Q("3 mm")),
    Sketcher.Constraint("DistanceY", 0, 1, 0, 2, Q("57.5 mm")),
    Sketcher.Constraint("DistanceY", 2, 2, -1, 1, Q("20 mm")),
    Sketcher.Constraint("DistanceX", -1, 1, 0, 2, Q("52.225 mm")),
])
sketch21.setExpression("Constraints[8]", "Params.sketch21_width")
sketch21.setExpression("Constraints[9]", "Params.sketch21_height")
pocket11 = doc.addObject("PartDesign::Pocket", "Pocket010")
body.addObject(pocket11)
pocket11.Profile = sketch21
pocket11.setExpression("Length", "Params.pocket11_length")
pocket11.Reversed = True

doc.recompute()
